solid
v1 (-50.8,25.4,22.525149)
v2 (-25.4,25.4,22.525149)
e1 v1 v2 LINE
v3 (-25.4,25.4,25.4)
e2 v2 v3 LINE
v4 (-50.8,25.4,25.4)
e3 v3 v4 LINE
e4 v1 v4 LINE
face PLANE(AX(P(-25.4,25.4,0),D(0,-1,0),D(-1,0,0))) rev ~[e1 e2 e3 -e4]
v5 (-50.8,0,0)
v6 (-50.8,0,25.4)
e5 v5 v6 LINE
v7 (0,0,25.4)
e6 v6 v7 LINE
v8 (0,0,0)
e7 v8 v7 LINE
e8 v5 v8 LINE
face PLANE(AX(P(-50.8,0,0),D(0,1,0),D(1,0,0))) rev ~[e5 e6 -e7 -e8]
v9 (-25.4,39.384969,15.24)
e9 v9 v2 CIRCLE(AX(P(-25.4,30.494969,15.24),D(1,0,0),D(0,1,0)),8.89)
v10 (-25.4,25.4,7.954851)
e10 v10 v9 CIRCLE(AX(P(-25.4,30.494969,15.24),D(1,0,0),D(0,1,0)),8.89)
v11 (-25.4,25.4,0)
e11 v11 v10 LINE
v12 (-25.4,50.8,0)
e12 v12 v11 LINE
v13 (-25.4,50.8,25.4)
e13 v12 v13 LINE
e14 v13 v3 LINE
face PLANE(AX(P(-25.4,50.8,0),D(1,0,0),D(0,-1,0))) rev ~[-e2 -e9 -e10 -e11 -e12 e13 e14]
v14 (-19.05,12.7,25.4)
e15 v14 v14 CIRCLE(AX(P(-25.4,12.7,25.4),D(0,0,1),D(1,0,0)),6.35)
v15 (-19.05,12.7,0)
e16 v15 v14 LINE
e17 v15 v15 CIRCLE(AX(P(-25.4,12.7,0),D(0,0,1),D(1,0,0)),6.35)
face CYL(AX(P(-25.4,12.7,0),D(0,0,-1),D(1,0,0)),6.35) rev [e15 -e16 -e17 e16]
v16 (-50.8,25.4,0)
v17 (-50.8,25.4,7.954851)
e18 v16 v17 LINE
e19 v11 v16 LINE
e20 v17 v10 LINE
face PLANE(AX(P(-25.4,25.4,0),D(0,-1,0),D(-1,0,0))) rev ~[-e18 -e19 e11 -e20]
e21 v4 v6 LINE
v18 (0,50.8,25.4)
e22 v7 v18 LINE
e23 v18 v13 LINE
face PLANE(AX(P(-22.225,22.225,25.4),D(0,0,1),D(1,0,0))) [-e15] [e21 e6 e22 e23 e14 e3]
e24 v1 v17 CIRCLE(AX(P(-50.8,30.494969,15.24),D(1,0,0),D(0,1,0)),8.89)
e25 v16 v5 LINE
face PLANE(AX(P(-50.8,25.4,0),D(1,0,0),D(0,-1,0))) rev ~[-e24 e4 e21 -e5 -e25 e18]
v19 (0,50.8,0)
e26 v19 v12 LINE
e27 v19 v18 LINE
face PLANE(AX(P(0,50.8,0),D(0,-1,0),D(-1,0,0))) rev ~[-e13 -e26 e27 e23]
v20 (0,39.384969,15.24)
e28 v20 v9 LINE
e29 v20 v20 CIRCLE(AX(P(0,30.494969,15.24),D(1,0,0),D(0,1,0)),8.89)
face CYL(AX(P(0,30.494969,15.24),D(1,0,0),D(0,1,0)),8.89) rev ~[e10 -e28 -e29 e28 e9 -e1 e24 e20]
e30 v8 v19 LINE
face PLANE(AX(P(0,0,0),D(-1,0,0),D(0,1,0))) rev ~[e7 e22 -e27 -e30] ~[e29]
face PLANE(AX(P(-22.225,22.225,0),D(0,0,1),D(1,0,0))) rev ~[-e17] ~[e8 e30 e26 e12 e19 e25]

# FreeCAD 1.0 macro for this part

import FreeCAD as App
import Part
import Sketcher

V = App.Vector
Q = App.Units.Quantity

doc = App.newDocument("Part")
params = doc.addObject("Spreadsheet::Sheet", "Params")
for row, (alias, value) in enumerate([
    ("sketch1_diameter", "0.5 in"),
    ("sketch1_width", "2 in"),
    ("pad1_length", "1 in"),
    ("sketch2_diameter", "0.7 in"),
    ("pocket1_length", "2 in"),
], start=1):
    params.set(f"A{row}", alias)
    params.set(f"B{row}", "=" + value)
    params.setAlias(f"B{row}", alias)

body = doc.addObject("PartDesign::Body", "Body")

sketch1 = body.newObject("Sketcher::SketchObject", "Sketch")
sketch1.AttachmentSupport = (doc.getObject("XY_Plane"), [""])
sketch1.MapMode = "FlatFace"
sketch1.addGeometry(Part.LineSegment(V(-51, 0, 0), V(0, 0, 0)), False)
sketch1.addGeometry(Part.LineSegment(V(0, 0, 0), V(0, 51, 0)), False)
sketch1.addGeometry(Part.LineSegment(V(0, 51, 0), V(-25, 51, 0)), False)
sketch1.addGeometry(Part.LineSegment(V(-25, 51, 0), V(-25, 25, 0)), False)
sketch1.addGeometry(Part.LineSegment(V(-25, 25, 0), V(-51, 25, 0)), False)
sketch1.addGeometry(Part.LineSegment(V(-51, 25, 0), V(-51, 0, 0)), False)
sketch1.addGeometry(Part.Circle(V(-25, 13, 0), V(0, 0, 1), 6), False)
sketch1.addConstraint(Sketcher.Constraint("Coincident", 0, 2, 1, 1))
sketch1.addConstraint(Sketcher.Constraint("Coincident", 1, 2, 2, 1))
sketch1.addConstraint(Sketcher.Constraint("Coincident", 2, 2, 3, 1))
sketch1.addConstraint(Sketcher.Constraint("Coincident", 3, 2, 4, 1))
sketch1.addConstraint(Sketcher.Constraint("Coincident", 4, 2, 5, 1))
sketch1.addConstraint(Sketcher.Constraint("Coincident", 5, 2, 0, 1))
sketch1.addConstraint(Sketcher.Constraint("Horizontal", 0))
sketch1.addConstraint(Sketcher.Constraint("Vertical", 1))
sketch1.addConstraint(Sketcher.Constraint("Horizontal", 2))
sketch1.addConstraint(Sketcher.Constraint("Vertical", 3))
sketch1.addConstraint(Sketcher.Constraint("Horizontal", 4))
sketch1.addConstraint(Sketcher.Constraint("Vertical", 5))
sketch1.addConstraint(Sketcher.Constraint("Coincident", 0, 2, -1, 1))
sketch1.addConstraint(Sketcher.Constraint("Vertical", 6, 3, 2, 2))
sketch1.addConstraint(Sketcher.Constraint("Equal", 2, 4))
sketch1.addConstraint(Sketcher.Constraint("Equal", 0, 1))
sketch1.addConstraint(Sketcher.Constraint("Equal", 4, 3))
sketch1.addConstraint(Sketcher.Constraint("Diameter", 6, Q("0.5 in")))
sketch1.addConstraint(Sketcher.Constraint("DistanceX", 0, 1, 0, 2, Q("2 in")))
sketch1.addConstraint(Sketcher.Constraint("DistanceY", -1, 1, 6, 3, Q("0.5 in")))
sketch1.setExpression("Constraints[17]", "Params.sketch1_diameter")
sketch1.setExpression("Constraints[18]", "Params.sketch1_width")
pad1 = body.newObject("PartDesign::Pad", "Pad")
pad1.Profile = sketch1
pad1.setExpression("Length", "Params.pad1_length")

sketch2 = body.newObject("Sketcher::SketchObject", "Sketch001")
sketch2.AttachmentSupport = (doc.getObject("YZ_Plane"), [""])
sketch2.MapMode = "FlatFace"
sketch2.addGeometry(Part.Circle(V(30, 15, 0), V(0, 0, 1), 9), False)
sketch2.addConstraint(Sketcher.Constraint("Diameter", 0, Q("0.7 in")))
sketch2.addConstraint(Sketcher.Constraint("DistanceY", -1, 1, 0, 3, Q("0.6 in")))
sketch2.addConstraint(Sketcher.Constraint("DistanceX", -1, 1, 0, 3, Q("30.494969 mm")))
sketch2.setExpression("Constraints[0]", "Params.sketch2_diameter")
pocket1 = body.newObject("PartDesign::Pocket", "Pocket")
pocket1.Profile = sketch2
pocket1.setExpression("Length", "Params.pocket1_length")

doc.recompute()
